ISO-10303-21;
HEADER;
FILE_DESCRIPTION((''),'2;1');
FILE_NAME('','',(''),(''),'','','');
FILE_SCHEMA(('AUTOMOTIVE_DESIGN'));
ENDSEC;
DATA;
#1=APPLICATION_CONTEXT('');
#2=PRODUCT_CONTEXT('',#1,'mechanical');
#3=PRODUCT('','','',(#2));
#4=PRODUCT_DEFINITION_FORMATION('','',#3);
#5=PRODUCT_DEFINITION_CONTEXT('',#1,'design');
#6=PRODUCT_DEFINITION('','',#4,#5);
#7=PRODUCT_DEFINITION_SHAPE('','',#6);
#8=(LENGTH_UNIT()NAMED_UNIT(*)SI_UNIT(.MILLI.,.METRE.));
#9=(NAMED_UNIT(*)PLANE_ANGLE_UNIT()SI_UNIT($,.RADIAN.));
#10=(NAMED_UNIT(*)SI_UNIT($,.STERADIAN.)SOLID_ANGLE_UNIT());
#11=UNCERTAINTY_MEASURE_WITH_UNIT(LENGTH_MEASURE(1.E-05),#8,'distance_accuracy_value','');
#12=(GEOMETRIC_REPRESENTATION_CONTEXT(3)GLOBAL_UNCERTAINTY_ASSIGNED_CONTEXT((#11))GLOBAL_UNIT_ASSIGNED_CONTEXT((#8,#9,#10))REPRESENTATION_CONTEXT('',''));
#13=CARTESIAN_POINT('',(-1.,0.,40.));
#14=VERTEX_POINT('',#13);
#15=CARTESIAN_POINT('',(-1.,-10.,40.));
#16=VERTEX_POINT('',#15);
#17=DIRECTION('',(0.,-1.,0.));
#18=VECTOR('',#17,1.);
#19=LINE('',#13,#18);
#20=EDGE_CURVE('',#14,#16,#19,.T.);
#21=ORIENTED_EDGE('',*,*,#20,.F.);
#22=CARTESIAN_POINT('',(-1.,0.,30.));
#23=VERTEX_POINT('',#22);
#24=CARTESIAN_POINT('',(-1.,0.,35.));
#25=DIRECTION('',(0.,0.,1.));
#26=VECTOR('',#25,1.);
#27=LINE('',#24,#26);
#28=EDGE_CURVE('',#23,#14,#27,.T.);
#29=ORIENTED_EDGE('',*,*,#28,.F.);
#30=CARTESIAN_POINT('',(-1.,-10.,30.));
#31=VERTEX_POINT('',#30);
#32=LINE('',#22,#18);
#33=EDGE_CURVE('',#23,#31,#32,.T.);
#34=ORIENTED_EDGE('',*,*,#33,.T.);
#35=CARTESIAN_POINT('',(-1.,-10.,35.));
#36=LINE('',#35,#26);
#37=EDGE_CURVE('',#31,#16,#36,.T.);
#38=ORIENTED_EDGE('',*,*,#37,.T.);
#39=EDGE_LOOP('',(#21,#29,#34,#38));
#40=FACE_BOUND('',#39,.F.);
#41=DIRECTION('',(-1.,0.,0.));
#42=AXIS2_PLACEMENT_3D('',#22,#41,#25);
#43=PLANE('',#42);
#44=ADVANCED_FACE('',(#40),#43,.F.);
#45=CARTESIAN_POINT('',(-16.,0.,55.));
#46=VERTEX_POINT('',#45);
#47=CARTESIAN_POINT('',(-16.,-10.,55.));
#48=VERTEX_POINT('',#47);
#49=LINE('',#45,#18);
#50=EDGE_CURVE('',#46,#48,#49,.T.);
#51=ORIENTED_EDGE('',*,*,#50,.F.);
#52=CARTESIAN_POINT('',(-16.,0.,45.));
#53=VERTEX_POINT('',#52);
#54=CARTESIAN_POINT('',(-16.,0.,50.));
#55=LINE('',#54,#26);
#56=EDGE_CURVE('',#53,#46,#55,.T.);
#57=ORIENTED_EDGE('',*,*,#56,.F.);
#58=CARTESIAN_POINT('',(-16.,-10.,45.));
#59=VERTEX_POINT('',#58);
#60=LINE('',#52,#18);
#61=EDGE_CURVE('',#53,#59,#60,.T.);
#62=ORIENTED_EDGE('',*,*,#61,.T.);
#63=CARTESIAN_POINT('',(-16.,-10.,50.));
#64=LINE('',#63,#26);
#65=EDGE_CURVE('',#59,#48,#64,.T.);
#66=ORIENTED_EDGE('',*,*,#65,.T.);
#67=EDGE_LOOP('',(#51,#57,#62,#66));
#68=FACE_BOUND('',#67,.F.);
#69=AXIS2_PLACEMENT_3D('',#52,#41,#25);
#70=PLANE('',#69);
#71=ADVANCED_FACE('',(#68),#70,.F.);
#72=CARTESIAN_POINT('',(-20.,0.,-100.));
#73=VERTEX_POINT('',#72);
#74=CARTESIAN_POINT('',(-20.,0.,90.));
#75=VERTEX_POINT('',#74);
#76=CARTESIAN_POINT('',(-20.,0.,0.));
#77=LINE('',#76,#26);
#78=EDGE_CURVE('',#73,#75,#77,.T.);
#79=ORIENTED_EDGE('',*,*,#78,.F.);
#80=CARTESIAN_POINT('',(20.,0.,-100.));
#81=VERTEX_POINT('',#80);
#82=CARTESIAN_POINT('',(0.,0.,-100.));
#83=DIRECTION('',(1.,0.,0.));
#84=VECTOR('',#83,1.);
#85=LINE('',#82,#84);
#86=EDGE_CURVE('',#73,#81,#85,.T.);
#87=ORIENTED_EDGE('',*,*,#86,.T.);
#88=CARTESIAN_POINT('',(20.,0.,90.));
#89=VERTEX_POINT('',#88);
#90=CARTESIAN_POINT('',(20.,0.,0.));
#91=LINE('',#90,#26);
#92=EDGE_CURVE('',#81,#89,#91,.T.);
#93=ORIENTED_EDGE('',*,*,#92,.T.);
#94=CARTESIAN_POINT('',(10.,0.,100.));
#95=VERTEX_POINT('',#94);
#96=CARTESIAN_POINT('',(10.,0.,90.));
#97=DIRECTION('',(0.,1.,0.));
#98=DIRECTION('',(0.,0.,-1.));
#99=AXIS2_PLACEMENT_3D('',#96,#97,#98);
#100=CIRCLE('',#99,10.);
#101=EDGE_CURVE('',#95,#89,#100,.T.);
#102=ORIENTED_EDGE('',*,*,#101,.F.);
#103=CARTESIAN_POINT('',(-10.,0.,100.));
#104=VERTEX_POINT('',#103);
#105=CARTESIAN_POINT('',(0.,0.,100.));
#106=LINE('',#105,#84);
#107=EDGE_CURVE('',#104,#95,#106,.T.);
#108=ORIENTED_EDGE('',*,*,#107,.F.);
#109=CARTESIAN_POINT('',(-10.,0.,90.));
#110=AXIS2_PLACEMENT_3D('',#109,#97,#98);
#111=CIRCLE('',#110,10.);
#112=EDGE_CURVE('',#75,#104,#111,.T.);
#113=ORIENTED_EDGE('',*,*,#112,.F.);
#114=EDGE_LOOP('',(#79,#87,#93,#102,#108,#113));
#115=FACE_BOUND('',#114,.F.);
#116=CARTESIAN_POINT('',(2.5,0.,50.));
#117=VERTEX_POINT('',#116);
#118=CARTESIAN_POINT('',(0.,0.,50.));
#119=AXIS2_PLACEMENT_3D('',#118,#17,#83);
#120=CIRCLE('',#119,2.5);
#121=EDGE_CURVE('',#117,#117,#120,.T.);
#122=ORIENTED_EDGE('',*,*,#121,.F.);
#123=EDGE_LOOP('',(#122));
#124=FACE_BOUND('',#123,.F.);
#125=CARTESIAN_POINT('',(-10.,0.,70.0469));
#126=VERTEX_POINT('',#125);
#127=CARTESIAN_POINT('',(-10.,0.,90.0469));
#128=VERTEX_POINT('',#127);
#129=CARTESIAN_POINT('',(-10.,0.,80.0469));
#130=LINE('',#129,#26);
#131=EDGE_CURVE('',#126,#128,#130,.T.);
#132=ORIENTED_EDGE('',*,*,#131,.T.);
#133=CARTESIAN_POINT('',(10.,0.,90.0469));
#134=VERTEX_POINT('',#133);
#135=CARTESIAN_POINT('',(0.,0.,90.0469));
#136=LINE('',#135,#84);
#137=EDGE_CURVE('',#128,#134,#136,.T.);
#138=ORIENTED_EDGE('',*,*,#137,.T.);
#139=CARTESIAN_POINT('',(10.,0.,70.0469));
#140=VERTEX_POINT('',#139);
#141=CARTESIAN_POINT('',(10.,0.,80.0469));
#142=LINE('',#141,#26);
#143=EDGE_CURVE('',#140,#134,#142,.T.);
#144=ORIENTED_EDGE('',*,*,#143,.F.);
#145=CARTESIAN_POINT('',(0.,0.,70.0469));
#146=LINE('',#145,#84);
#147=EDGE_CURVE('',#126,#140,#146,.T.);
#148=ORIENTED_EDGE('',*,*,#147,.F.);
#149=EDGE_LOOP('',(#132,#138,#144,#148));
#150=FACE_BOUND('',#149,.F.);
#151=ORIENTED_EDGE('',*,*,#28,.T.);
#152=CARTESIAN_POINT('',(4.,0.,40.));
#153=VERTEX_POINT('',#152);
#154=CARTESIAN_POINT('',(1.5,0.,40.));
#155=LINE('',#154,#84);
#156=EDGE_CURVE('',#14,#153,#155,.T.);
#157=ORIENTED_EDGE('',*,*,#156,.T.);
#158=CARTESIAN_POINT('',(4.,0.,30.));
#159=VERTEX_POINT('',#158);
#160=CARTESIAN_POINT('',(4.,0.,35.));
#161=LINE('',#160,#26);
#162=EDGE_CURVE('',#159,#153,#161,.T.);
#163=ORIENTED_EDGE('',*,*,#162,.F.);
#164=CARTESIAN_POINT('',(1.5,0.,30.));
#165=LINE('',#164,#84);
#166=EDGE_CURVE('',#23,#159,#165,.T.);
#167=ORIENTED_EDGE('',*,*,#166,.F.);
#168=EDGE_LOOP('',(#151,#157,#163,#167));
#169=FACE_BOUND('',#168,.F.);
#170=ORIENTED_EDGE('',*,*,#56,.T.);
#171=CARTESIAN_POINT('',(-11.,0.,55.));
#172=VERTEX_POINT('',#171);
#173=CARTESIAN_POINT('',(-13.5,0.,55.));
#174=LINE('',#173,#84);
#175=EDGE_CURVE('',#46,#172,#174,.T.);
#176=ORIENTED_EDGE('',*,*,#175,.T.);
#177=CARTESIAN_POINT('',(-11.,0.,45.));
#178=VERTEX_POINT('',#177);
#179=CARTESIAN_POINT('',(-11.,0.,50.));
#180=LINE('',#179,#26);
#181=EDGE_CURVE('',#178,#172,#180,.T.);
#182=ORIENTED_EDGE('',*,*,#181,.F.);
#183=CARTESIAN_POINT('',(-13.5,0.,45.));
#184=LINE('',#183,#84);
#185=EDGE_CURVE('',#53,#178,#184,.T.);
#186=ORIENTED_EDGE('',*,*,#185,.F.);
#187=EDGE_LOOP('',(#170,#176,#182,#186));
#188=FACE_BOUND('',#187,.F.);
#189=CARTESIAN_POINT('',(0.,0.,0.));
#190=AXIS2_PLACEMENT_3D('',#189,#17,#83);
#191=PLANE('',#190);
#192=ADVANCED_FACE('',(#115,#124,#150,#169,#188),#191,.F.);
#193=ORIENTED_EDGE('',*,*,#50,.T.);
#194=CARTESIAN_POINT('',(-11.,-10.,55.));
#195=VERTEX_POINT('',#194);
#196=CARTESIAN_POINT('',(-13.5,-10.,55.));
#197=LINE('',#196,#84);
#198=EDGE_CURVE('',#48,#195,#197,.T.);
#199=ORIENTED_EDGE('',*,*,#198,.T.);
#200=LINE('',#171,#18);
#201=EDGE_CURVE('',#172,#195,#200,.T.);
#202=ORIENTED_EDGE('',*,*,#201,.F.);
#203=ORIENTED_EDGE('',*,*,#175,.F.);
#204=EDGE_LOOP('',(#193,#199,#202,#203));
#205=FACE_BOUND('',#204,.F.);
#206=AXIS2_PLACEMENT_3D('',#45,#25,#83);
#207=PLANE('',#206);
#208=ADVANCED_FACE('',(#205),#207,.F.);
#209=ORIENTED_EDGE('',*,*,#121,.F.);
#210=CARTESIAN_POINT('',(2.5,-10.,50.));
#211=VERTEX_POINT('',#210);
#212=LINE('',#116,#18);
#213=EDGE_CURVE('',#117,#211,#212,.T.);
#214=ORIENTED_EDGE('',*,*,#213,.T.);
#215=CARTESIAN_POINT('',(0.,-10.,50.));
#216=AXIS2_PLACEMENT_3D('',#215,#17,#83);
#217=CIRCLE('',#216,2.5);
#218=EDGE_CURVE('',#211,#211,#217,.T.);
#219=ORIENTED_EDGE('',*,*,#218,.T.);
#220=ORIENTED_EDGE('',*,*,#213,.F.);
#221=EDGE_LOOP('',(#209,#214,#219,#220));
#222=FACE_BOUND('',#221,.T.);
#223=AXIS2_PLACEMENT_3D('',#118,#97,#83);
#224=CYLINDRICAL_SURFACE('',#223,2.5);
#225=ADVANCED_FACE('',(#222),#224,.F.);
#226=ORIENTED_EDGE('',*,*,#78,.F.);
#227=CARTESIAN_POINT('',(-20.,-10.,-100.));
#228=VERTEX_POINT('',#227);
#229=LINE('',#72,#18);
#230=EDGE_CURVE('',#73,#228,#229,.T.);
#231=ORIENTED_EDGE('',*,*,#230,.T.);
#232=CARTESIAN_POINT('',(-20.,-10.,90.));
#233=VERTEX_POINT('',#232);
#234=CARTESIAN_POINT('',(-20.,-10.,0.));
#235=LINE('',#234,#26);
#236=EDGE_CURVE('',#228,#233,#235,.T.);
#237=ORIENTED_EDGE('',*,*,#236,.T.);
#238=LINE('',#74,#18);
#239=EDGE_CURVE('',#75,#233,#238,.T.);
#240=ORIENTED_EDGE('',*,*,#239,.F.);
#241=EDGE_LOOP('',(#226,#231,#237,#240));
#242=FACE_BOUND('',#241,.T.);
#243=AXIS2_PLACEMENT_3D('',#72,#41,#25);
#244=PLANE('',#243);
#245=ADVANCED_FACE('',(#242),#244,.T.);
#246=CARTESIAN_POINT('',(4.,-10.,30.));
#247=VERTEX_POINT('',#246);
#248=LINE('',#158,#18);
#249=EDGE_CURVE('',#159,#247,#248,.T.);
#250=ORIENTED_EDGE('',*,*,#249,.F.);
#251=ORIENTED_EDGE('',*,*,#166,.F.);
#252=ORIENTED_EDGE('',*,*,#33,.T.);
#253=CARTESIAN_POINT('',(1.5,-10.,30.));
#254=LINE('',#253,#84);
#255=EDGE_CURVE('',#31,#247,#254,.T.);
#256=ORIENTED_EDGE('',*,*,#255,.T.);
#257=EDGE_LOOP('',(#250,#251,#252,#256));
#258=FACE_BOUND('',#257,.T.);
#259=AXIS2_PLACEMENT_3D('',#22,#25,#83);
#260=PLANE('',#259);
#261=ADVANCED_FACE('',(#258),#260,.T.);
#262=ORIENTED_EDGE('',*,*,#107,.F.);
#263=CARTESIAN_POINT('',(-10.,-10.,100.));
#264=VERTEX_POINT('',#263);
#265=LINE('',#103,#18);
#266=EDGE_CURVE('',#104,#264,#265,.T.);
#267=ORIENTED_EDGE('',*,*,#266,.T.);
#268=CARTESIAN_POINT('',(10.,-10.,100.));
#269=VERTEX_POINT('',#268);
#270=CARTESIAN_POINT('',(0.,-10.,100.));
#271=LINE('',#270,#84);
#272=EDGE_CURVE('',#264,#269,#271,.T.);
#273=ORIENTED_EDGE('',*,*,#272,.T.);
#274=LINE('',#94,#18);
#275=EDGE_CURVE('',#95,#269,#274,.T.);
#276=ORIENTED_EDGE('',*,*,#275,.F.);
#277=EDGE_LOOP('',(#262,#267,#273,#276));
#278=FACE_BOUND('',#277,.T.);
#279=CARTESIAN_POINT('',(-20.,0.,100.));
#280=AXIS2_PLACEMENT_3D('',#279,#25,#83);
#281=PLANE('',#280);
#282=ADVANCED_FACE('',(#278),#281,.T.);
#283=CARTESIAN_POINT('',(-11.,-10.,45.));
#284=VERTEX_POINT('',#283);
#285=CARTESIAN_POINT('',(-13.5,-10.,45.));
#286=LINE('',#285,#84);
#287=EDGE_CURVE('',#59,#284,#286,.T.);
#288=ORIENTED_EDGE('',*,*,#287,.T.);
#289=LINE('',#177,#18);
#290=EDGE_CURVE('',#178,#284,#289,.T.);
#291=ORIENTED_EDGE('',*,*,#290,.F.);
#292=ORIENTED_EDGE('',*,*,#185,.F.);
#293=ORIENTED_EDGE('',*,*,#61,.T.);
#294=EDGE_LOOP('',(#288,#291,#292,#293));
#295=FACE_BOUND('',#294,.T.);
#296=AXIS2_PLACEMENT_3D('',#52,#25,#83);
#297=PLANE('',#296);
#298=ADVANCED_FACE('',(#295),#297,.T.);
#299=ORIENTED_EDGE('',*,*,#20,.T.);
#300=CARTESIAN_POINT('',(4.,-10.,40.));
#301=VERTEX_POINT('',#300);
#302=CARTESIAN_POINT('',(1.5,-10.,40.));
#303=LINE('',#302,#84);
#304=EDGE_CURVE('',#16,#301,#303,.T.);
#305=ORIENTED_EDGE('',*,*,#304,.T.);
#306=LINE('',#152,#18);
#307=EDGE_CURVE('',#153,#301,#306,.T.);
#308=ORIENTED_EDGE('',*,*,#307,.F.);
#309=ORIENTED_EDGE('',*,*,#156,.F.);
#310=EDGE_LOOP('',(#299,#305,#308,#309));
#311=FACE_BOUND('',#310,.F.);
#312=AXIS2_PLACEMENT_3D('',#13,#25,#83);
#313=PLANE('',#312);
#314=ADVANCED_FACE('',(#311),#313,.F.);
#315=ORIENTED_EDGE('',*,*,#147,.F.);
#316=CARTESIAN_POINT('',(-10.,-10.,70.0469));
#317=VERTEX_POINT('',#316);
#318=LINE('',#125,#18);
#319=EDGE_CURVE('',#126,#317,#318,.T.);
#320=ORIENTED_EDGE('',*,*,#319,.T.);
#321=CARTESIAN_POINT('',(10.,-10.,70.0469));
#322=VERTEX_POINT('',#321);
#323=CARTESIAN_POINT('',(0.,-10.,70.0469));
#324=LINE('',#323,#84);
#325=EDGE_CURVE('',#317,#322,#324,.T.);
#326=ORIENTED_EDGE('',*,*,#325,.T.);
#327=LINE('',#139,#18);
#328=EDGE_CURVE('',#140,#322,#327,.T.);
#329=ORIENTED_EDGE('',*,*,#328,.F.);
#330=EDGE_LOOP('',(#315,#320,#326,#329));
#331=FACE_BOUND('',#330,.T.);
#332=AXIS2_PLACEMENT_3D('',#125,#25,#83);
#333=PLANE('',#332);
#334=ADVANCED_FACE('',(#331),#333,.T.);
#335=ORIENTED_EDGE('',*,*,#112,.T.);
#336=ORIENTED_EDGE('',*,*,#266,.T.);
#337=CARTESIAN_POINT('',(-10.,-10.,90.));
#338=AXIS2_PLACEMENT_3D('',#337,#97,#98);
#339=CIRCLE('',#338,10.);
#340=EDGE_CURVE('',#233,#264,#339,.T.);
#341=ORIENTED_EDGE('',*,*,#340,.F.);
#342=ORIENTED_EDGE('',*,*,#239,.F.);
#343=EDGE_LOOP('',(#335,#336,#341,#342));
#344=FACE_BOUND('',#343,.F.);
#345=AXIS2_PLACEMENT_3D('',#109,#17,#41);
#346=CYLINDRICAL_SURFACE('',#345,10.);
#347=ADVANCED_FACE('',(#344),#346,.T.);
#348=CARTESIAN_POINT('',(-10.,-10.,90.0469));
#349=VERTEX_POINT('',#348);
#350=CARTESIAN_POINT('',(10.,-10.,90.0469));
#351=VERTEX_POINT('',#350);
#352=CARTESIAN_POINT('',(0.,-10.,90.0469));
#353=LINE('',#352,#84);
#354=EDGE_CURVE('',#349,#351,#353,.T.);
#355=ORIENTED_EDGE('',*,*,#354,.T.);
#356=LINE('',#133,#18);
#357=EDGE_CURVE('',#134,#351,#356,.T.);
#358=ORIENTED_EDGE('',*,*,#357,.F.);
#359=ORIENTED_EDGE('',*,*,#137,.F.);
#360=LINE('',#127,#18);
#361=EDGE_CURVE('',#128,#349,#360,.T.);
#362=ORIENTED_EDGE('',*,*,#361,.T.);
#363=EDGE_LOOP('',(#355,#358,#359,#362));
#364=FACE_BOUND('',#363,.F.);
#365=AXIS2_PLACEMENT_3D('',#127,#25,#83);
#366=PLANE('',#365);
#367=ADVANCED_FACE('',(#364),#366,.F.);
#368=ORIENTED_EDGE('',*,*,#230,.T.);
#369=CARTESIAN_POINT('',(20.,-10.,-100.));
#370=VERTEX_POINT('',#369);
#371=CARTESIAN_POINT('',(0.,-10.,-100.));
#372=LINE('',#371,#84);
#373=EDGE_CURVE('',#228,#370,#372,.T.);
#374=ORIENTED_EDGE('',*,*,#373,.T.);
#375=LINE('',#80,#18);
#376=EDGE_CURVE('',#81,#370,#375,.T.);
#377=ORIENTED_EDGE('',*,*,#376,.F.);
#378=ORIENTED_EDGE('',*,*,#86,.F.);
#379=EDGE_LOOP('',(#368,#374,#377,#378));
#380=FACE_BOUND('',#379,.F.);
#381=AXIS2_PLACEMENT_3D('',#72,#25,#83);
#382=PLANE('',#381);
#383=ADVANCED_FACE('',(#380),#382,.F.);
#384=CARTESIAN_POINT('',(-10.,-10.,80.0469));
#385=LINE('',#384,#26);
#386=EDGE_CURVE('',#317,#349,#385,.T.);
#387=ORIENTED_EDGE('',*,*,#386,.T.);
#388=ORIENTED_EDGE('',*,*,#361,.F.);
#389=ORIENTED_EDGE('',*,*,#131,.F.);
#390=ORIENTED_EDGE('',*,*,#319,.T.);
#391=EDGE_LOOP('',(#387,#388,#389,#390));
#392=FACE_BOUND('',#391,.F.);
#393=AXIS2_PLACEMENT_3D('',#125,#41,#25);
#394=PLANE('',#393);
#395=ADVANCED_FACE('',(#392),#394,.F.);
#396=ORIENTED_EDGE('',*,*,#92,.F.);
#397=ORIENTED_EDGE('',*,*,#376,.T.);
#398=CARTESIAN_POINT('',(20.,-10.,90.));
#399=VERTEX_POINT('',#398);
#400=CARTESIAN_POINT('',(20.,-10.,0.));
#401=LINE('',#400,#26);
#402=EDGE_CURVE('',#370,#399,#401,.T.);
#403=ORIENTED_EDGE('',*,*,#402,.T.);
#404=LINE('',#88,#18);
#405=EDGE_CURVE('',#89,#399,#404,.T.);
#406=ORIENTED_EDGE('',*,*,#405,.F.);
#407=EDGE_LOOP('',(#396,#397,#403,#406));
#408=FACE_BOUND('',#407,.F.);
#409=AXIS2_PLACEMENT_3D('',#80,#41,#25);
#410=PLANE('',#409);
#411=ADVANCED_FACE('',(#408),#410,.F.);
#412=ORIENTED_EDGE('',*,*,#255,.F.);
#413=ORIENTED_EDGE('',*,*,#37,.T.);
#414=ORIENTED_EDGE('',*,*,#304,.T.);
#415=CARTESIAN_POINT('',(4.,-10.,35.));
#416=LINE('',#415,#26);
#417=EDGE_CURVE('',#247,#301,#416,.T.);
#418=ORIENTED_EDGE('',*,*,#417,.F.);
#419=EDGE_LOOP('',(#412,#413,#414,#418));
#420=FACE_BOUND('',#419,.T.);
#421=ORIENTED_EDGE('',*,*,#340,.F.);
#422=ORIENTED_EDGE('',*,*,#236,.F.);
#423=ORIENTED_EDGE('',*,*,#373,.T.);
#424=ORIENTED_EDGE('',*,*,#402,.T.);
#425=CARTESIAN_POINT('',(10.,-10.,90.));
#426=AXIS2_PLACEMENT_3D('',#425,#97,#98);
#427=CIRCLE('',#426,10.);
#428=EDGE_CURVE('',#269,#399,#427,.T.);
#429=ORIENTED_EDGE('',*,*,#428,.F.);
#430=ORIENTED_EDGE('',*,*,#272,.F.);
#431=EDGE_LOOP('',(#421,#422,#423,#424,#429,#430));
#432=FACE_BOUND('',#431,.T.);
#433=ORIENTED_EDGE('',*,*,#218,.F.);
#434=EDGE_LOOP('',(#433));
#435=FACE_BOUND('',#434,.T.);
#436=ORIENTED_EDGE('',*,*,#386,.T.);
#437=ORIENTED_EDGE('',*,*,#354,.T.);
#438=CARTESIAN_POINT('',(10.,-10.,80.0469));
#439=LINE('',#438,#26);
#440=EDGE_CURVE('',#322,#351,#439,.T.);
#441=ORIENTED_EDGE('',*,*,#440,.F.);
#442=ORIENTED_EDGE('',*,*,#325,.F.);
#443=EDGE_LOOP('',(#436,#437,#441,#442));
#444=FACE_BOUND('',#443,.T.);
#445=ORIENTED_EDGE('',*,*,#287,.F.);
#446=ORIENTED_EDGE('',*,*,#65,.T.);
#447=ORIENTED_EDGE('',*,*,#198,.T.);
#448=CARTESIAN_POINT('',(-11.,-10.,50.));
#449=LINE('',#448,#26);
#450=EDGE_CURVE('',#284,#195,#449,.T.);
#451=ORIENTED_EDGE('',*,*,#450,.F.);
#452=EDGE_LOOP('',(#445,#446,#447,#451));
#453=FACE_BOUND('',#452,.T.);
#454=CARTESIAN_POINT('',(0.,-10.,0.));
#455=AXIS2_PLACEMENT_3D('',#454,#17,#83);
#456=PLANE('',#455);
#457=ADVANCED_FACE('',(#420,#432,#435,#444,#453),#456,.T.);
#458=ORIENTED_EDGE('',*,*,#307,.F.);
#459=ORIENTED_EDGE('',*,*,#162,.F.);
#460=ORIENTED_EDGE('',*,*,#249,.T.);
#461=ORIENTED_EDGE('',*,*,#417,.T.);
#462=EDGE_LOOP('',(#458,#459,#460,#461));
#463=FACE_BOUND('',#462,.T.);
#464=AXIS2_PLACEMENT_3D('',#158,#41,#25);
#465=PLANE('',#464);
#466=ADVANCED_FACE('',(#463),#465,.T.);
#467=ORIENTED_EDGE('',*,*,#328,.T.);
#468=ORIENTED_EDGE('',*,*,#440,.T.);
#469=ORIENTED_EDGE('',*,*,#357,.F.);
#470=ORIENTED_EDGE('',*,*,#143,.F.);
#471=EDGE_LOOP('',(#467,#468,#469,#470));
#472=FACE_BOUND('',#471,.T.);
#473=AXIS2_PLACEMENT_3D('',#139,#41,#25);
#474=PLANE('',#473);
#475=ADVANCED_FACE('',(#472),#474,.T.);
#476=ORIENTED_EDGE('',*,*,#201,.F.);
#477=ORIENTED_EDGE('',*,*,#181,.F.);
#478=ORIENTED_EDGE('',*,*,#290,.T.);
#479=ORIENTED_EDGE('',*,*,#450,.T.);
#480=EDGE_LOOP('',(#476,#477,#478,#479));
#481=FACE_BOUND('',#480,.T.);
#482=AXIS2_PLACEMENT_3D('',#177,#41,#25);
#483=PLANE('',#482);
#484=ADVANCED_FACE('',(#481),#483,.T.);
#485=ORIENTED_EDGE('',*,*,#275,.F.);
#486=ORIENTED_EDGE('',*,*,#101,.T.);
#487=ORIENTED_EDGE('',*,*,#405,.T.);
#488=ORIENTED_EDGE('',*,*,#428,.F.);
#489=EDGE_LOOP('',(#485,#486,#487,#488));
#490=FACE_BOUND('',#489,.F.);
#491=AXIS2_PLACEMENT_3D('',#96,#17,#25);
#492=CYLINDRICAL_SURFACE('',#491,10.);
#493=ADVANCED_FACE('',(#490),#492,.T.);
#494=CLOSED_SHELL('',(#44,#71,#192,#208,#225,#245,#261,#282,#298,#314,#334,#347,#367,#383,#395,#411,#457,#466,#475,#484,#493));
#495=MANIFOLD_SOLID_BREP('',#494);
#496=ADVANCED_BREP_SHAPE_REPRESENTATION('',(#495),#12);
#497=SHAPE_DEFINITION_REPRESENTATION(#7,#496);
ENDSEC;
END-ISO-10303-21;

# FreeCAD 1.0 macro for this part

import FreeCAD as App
import Part
import Sketcher
from FreeCAD import Vector
Q = App.Units.Quantity


def edges_at(feature, points):
    """Names of the edges that pass closest to the given points."""
    edges = feature.Shape.Edges
    near = lambda p: min(range(len(edges)), key=lambda i: edges[i].distToShape(Part.Vertex(*p))[0])
    return sorted({f"Edge{near(p) + 1}" for p in points})


def add_polygon(sketch, points):
    """Adds a closed chain of lines whose ends are joined by coincident constraints."""
    first, n = sketch.GeometryCount, len(points)
    for a, b in zip(points, points[1:] + points[:1]):
        sketch.addGeometry(Part.LineSegment(App.Vector(*a, 0), App.Vector(*b, 0)), False)
    for i in range(n):
        sketch.addConstraint(Sketcher.Constraint("Coincident", first + i, 2, first + (i + 1) % n, 1))

doc = App.newDocument("Part")
params = doc.addObject("Spreadsheet::Sheet", "Params")
for row, (alias, value) in enumerate([
    ("sketch1_diameter", "5 mm"),
    ("sketch1_width", "40 mm"),
    ("sketch1_width2", "5 mm"),
    ("sketch1_width3", "20 mm"),
    ("sketch1_height", "200 mm"),
    ("pad1_length", "10 mm"),
    ("fillet_radius", "10 mm"),
], start=1):
    params.set(f"A{row}", alias)
    params.set(f"B{row}", "=" + value)
    params.setAlias(f"B{row}", alias)

body = doc.addObject("PartDesign::Body", "Body")

# Sketch on XZ plane
sketch1 = body.newObject("Sketcher::SketchObject", "Sketch")
sketch1.AttachmentSupport = (doc.getObject("XZ_Plane"), [""])
sketch1.MapMode = "FlatFace"
add_polygon(sketch1, [(-20, 100), (-20, -100), (20, -100), (20, 100)])  # lines 0-3
add_polygon(sketch1, [(-11, 45), (-16, 45), (-16, 55), (-11, 55)])  # lines 4-7
add_polygon(sketch1, [(4, 30), (-1, 30), (-1, 40), (4, 40)])  # lines 8-11
sketch1.addGeometry(Part.Circle(Vector(0, 50, 0), Vector(0, 0, 1), 2.5), False)  # 12
add_polygon(sketch1, [(10, 70), (-10, 70), (-10, 90), (10, 90)])  # lines 13-16
sketch1.addConstraint([
    Sketcher.Constraint("Vertical", 0),
    Sketcher.Constraint("Horizontal", 1),
    Sketcher.Constraint("Vertical", 2),
    Sketcher.Constraint("Horizontal", 3),
    Sketcher.Constraint("Horizontal", 4),
    Sketcher.Constraint("Vertical", 5),
    Sketcher.Constraint("Horizontal", 6),
    Sketcher.Constraint("Vertical", 7),
    Sketcher.Constraint("Horizontal", 8),
    Sketcher.Constraint("Vertical", 9),
    Sketcher.Constraint("Horizontal", 10),
    Sketcher.Constraint("Vertical", 11),
    Sketcher.Constraint("Horizontal", 13),
    Sketcher.Constraint("Vertical", 14),
    Sketcher.Constraint("Horizontal", 15),
    Sketcher.Constraint("Vertical", 16),
    Sketcher.Constraint("Symmetric", 0, 2, 2, 2, -1, 1),
    Sketcher.Constraint("PointOnObject", 12, 3, -2),
    Sketcher.Constraint("Equal", 6, 8),
    Sketcher.Constraint("Equal", 7, 9),
    Sketcher.Constraint("Equal", 15, 14),
    Sketcher.Constraint("Diameter", 12, Q("5 mm")),
    Sketcher.Constraint("DistanceX", 1, 1, 1, 2, Q("40 mm")),
    Sketcher.Constraint("DistanceX", 4, 2, 4, 1, Q("5 mm")),
    Sketcher.Constraint("DistanceX", 13, 2, 13, 1, Q("20 mm")),
    Sketcher.Constraint("DistanceY", 0, 2, 0, 1, Q("200 mm")),
    Sketcher.Constraint("DistanceY", 5, 1, 5, 2, Q("10 mm")),
    Sketcher.Constraint("DistanceY", -1, 1, 12, 3, Q("50 mm")),
    Sketcher.Constraint("DistanceX", 4, 2, -1, 1, Q("16 mm")),
    Sketcher.Constraint("DistanceY", -1, 1, 4, 2, Q("45 mm")),
    Sketcher.Constraint("DistanceX", 8, 2, -1, 1, Q("1 mm")),
    Sketcher.Constraint("DistanceY", -1, 1, 8, 2, Q("30 mm")),
    Sketcher.Constraint("DistanceX", 13, 2, -1, 1, Q("10 mm")),
    Sketcher.Constraint("DistanceY", -1, 1, 13, 2, Q("70.0469 mm")),
])
sketch1.setExpression("Constraints[37]", "Params.sketch1_diameter")
sketch1.setExpression("Constraints[38]", "Params.sketch1_width")
sketch1.setExpression("Constraints[39]", "Params.sketch1_width2")
sketch1.setExpression("Constraints[40]", "Params.sketch1_width3")
sketch1.setExpression("Constraints[41]", "Params.sketch1_height")
pad1 = body.newObject("PartDesign::Pad", "Pad")
pad1.Profile = sketch1
pad1.setExpression("Length", "Params.pad1_length")
doc.recompute()

fillet = body.newObject("PartDesign::Fillet", "Fillet")
fillet.Base = (pad1, edges_at(pad1, [(20, -5, 100), (-20, -5, 100)]))
fillet.setExpression("Radius", "Params.fillet_radius")

doc.recompute()
